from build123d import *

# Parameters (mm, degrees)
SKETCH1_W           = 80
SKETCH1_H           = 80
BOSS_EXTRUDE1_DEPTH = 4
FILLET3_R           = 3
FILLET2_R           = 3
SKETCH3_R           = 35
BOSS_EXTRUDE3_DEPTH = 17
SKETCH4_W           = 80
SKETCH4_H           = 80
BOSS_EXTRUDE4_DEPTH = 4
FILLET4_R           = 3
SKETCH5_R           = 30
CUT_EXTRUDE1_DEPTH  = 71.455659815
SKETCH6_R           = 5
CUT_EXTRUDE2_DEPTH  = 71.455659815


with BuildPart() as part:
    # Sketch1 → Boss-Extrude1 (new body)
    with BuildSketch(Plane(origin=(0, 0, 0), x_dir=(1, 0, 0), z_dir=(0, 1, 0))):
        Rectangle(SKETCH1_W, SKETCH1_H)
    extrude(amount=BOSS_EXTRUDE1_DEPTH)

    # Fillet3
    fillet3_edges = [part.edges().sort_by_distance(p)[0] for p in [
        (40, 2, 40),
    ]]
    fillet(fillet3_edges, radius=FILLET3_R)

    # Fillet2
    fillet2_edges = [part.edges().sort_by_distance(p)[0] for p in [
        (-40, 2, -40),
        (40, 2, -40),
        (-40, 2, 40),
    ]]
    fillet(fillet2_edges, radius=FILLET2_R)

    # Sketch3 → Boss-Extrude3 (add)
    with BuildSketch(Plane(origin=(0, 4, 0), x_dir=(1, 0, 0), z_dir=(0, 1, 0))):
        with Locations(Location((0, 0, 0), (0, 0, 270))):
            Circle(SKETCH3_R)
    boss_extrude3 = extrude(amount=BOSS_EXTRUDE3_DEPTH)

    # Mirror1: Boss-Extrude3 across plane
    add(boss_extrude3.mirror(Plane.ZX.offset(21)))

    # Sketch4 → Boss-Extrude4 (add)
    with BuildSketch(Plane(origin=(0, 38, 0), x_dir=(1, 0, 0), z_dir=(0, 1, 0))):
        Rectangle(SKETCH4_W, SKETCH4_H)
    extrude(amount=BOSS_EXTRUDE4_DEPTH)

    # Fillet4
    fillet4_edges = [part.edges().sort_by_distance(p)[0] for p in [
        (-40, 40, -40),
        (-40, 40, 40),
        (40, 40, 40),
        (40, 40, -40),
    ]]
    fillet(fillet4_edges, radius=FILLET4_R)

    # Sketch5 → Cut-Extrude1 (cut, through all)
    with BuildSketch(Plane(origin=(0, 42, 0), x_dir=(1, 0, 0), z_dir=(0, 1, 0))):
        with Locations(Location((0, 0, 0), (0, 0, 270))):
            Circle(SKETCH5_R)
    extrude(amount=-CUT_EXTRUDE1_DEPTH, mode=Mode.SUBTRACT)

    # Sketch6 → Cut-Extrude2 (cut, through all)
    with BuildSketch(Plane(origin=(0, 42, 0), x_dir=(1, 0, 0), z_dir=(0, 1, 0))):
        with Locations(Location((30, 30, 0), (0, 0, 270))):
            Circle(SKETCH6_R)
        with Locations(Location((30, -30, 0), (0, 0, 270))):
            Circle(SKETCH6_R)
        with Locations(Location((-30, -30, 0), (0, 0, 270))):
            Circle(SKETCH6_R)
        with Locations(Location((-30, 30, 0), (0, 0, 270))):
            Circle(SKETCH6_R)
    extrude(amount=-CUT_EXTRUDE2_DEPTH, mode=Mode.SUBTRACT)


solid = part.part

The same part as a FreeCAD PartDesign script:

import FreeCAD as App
import Part
import Sketcher
from FreeCAD import Vector
Q = App.Units.Quantity


def edges_at(feature, points):
    """Names of the edges that pass closest to the given points."""
    edges = feature.Shape.Edges
    near = lambda p: min(range(len(edges)), key=lambda i: edges[i].distToShape(Part.Vertex(*p))[0])
    return sorted({f"Edge{near(p) + 1}" for p in points})


def add_polygon(sketch, points):
    """Adds a closed chain of lines whose ends are joined by coincident constraints."""
    first, n = sketch.GeometryCount, len(points)
    for a, b in zip(points, points[1:] + points[:1]):
        sketch.addGeometry(Part.LineSegment(App.Vector(*a, 0), App.Vector(*b, 0)), False)
    for i in range(n):
        sketch.addConstraint(Sketcher.Constraint("Coincident", first + i, 2, first + (i + 1) % n, 1))

doc = App.newDocument("Part")
body = doc.addObject("PartDesign::Body", "Body")

sketch1 = body.newObject("Sketcher::SketchObject", "Sketch")
sketch1.AttachmentSupport = (doc.getObject("XZ_Plane"), [""])
sketch1.MapMode = "FlatFace"
add_polygon(sketch1, [(-40, -40), (-40, 40), (40, 40), (40, -40)])
sketch1.addConstraint([
    Sketcher.Constraint("Vertical", 0),
    Sketcher.Constraint("Horizontal", 1),
    Sketcher.Constraint("Vertical", 2),
    Sketcher.Constraint("Horizontal", 3),
    Sketcher.Constraint("Symmetric", 0, 2, 2, 2, -1, 1),
    Sketcher.Constraint("Equal", 3, 0),
    Sketcher.Constraint("DistanceX", 1, 1, 1, 2, Q("80 mm")),
])
pad1 = body.newObject("PartDesign::Pad", "Pad")
pad1.Profile = sketch1
pad1.Length = 4
pad1.Reversed = True
doc.recompute()

fillet = body.newObject("PartDesign::Fillet", "Fillet")
fillet.Base = (pad1, edges_at(pad1, [(40, 2, 40)]))
fillet.Radius = 3
doc.recompute()

fillet2 = body.newObject("PartDesign::Fillet", "Fillet001")
fillet2.Base = (fillet, edges_at(fillet, [(-40, 2, -40), (40, 2, -40), (-40, 2, 40)]))
fillet2.Radius = 3

sketch2 = body.newObject("Sketcher::SketchObject", "Sketch001")
sketch2.AttachmentSupport = (doc.getObject("XZ_Plane"), [""])
sketch2.MapMode = "FlatFace"
sketch2.AttachmentOffset = App.Placement(Vector(0, 0, -4), App.Rotation())
sketch2.addGeometry(Part.Circle(Vector(0, 0, 0), Vector(0, 0, 1), 35), False)
sketch2.addConstraint([
    Sketcher.Constraint("Coincident", 0, 3, -1, 1),
    Sketcher.Constraint("Diameter", 0, Q("70 mm")),
])
pad2 = body.newObject("PartDesign::Pad", "Pad001")
pad2.Profile = sketch2
pad2.Length = 17
pad2.Reversed = True
doc.recompute()

datumplane = body.newObject("PartDesign::Plane", "DatumPlane")
datumplane.AttachmentSupport = (doc.getObject("XZ_Plane"), [""])
datumplane.MapMode = "FlatFace"
datumplane.AttachmentOffset = App.Placement(Vector(0, 0, -21), App.Rotation())
mirrored = body.newObject("PartDesign::Mirrored", "Mirrored")
mirrored.Originals = [pad2]
mirrored.MirrorPlane = (datumplane, [""])
body.Tip = mirrored

sketch3 = body.newObject("Sketcher::SketchObject", "Sketch002")
sketch3.AttachmentSupport = (doc.getObject("XZ_Plane"), [""])
sketch3.MapMode = "FlatFace"
sketch3.AttachmentOffset = App.Placement(Vector(0, 0, -38), App.Rotation())
add_polygon(sketch3, [(-40, -40), (-40, 40), (40, 40), (40, -40)])
sketch3.addConstraint([
    Sketcher.Constraint("Vertical", 0),
    Sketcher.Constraint("Horizontal", 1),
    Sketcher.Constraint("Vertical", 2),
    Sketcher.Constraint("Horizontal", 3),
    Sketcher.Constraint("Symmetric", 0, 2, 2, 2, -1, 1),
    Sketcher.Constraint("Equal", 3, 0),
    Sketcher.Constraint("DistanceX", 1, 1, 1, 2, Q("80 mm")),
])
pad3 = body.newObject("PartDesign::Pad", "Pad002")
pad3.Profile = sketch3
pad3.Length = 4
pad3.Reversed = True
doc.recompute()

fillet3 = body.newObject("PartDesign::Fillet", "Fillet002")
fillet3.Base = (pad3, edges_at(pad3, [
    (-40, 40, -40),
    (-40, 40, 40),
    (40, 40, 40),
    (40, 40, -40),
]))
fillet3.Radius = 3

sketch4 = body.newObject("Sketcher::SketchObject", "Sketch003")
sketch4.AttachmentSupport = (doc.getObject("XZ_Plane"), [""])
sketch4.MapMode = "FlatFace"
sketch4.AttachmentOffset = App.Placement(Vector(0, 0, -42), App.Rotation())
sketch4.addGeometry(Part.Circle(Vector(0, 0, 0), Vector(0, 0, 1), 30), False)
sketch4.addConstraint([
    Sketcher.Constraint("Coincident", 0, 3, -1, 1),
    Sketcher.Constraint("Diameter", 0, Q("60 mm")),
])
pocket1 = body.newObject("PartDesign::Pocket", "Pocket")
pocket1.Profile = sketch4
pocket1.Type = "ThroughAll"
pocket1.Reversed = True

sketch5 = body.newObject("Sketcher::SketchObject", "Sketch004")
sketch5.AttachmentSupport = (doc.getObject("XZ_Plane"), [""])
sketch5.MapMode = "FlatFace"
sketch5.AttachmentOffset = App.Placement(Vector(0, 0, -42), App.Rotation())
sketch5.addGeometry([
    Part.Circle(Vector(30, -30, 0), Vector(0, 0, 1), 5),
    Part.Circle(Vector(30, 30, 0), Vector(0, 0, 1), 5),
    Part.Circle(Vector(-30, 30, 0), Vector(0, 0, 1), 5),
    Part.Circle(Vector(-30, -30, 0), Vector(0, 0, 1), 5),
], False)
sketch5.addConstraint([
    Sketcher.Constraint("Equal", 0, 1),
    Sketcher.Constraint("Equal", 1, 2),
    Sketcher.Constraint("Equal", 2, 3),
    Sketcher.Constraint("Symmetric", 0, 3, 2, 3, -1, 1),
    Sketcher.Constraint("Symmetric", 1, 3, 3, 3, -1, 1),
    Sketcher.Constraint("Symmetric", 1, 3, 2, 3, -2),
    Sketcher.Constraint("Diameter", 0, Q("10 mm")),
    Sketcher.Constraint("DistanceX", -1, 1, 0, 3, Q("30 mm")),
    Sketcher.Constraint("DistanceY", 0, 3, -1, 1, Q("30 mm")),
])
pocket2 = body.newObject("PartDesign::Pocket", "Pocket001")
pocket2.Profile = sketch5
pocket2.Type = "ThroughAll"
pocket2.Reversed = True

doc.recompute()
